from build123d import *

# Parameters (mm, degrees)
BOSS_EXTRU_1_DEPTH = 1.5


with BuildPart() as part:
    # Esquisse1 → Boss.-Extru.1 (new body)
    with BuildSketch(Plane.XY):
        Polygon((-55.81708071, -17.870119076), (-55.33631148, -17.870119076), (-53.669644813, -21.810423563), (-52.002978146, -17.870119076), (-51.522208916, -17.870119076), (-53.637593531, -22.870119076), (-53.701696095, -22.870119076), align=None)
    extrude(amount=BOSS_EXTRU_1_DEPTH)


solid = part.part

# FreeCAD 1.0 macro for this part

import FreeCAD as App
import Part
import Sketcher


def add_polygon(sketch, points):
    """Adds a closed chain of lines whose ends are joined by coincident constraints."""
    first, n = sketch.GeometryCount, len(points)
    for a, b in zip(points, points[1:] + points[:1]):
        sketch.addGeometry(Part.LineSegment(App.Vector(*a, 0), App.Vector(*b, 0)), False)
    for i in range(n):
        sketch.addConstraint(Sketcher.Constraint("Coincident", first + i, 2, first + (i + 1) % n, 1))

doc = App.newDocument("Part")
body = doc.addObject("PartDesign::Body", "Body")

# Sketch on XY plane
sketch1 = doc.addObject("Sketcher::SketchObject", "Sketch")
body.addObject(sketch1)
sketch1.AttachmentSupport = (doc.XY_Plane, [""])
sketch1.MapMode = "FlatFace"
add_polygon(sketch1, [(-55.34, -17.87), (-55.82, -17.87), (-53.7, -22.87), (-53.64, -22.87), (-51.52, -17.87), (-52, -17.87), (-53.67, -21.81)])  # lines 0-6
sketch1.addConstraint([
    Sketcher.Constraint("Horizontal", 0),
    Sketcher.Constraint("Horizontal", 2),
    Sketcher.Constraint("Horizontal", 4),
    Sketcher.Constraint("Horizontal", 0, 2, 3, 2),
    Sketcher.Constraint("Equal", 0, 4),
    Sketcher.Constraint("Equal", 1, 3),
    Sketcher.Constraint("Equal", 5, 6),
    Sketcher.Constraint("DistanceY", 1, 2, 0, 2, 5.0),
    Sketcher.Constraint("DistanceX", 0, 2, 0, 1, 0.480769),
    Sketcher.Constraint("Distance", 5, 4.278291),
    Sketcher.Constraint("DistanceX", 2, 1, 2, 2, 0.064103),
    Sketcher.Constraint("DistanceX", 0, 2, -1, 1, 55.817081),
    Sketcher.Constraint("DistanceY", 0, 2, -1, 1, 17.870119),
    Sketcher.Constraint("DistanceX", 3, 2, -1, 1, 51.522209),
])
pad1 = doc.addObject("PartDesign::Pad", "Pad")
body.addObject(pad1)
pad1.Profile = sketch1
pad1.Length = 1.5

doc.recompute()
